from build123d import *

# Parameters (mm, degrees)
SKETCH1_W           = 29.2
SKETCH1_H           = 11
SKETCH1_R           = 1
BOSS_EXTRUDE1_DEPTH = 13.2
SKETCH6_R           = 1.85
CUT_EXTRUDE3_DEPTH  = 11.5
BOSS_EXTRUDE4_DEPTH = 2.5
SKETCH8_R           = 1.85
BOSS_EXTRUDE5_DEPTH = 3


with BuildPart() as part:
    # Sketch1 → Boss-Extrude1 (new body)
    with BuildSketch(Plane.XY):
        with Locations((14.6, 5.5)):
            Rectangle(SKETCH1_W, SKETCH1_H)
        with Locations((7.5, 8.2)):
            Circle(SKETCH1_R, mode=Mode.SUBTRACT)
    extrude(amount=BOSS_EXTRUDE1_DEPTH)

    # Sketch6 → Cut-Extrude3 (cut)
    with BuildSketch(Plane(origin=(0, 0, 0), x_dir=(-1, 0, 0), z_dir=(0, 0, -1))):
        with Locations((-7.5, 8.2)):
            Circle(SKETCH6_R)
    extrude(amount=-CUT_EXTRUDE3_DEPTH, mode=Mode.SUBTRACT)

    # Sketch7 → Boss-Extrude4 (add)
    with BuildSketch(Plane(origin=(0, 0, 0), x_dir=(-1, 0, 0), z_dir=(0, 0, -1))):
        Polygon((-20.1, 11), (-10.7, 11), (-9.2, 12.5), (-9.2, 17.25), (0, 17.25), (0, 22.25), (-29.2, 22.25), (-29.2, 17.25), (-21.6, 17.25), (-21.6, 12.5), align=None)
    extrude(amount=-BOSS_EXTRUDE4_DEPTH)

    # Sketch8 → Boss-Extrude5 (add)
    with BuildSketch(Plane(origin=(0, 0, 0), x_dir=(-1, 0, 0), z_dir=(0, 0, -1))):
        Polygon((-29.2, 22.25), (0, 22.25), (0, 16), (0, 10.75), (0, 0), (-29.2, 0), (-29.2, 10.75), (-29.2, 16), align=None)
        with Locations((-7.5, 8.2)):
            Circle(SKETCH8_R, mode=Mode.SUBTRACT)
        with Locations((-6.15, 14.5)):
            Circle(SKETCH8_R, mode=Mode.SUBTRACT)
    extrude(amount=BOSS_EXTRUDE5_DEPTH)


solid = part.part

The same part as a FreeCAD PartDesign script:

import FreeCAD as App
import Part
import Sketcher
from FreeCAD import Vector


def add_polygon(sketch, points):
    """Adds a closed chain of lines whose ends are joined by coincident constraints."""
    first, n = sketch.GeometryCount, len(points)
    for a, b in zip(points, points[1:] + points[:1]):
        sketch.addGeometry(Part.LineSegment(App.Vector(*a, 0), App.Vector(*b, 0)), False)
    for i in range(n):
        sketch.addConstraint(Sketcher.Constraint("Coincident", first + i, 2, first + (i + 1) % n, 1))

doc = App.newDocument("Part")
body = doc.addObject("PartDesign::Body", "Body")

# Sketch on XY plane
sketch1 = body.newObject("Sketcher::SketchObject", "Sketch")
sketch1.AttachmentSupport = (doc.getObject("XY_Plane"), [""])
sketch1.MapMode = "FlatFace"
add_polygon(sketch1, [(0, 11), (0, 0), (29.2, 0), (29.2, 11)])  # lines 0-3
sketch1.addGeometry(Part.Circle(Vector(7.5, 8.2, 0), Vector(0, 0, 1), 1), False)  # 4
sketch1.addConstraint([
    Sketcher.Constraint("Vertical", 0),
    Sketcher.Constraint("Horizontal", 1),
    Sketcher.Constraint("Vertical", 2),
    Sketcher.Constraint("Horizontal", 3),
    Sketcher.Constraint("Coincident", 0, 2, -1, 1),
    Sketcher.Constraint("Diameter", 4, 2.0),
    Sketcher.Constraint("DistanceY", 0, 2, 0, 1, 11.0),
    Sketcher.Constraint("DistanceX", 1, 1, 1, 2, 29.2),
    Sketcher.Constraint("DistanceX", -1, 1, 4, 3, 7.5),
    Sketcher.Constraint("DistanceY", -1, 1, 4, 3, 8.2),
])
pad1 = body.newObject("PartDesign::Pad", "Pad")
pad1.Profile = sketch1
pad1.Length = 13.2

# Sketch on XY plane
sketch2 = body.newObject("Sketcher::SketchObject", "Sketch001")
sketch2.AttachmentSupport = (doc.getObject("XY_Plane"), [""])
sketch2.MapMode = "FlatFace"
sketch2.addGeometry(Part.Circle(Vector(7.5, 8.2, 0), Vector(0, 0, 1), 1.9), False)
sketch2.addConstraint([
    Sketcher.Constraint("Diameter", 0, 3.7),
    Sketcher.Constraint("DistanceX", -1, 1, 0, 3, 7.5),
    Sketcher.Constraint("DistanceY", -1, 1, 0, 3, 8.2),
])
pocket1 = body.newObject("PartDesign::Pocket", "Pocket")
pocket1.Profile = sketch2
pocket1.Length = 11.5
pocket1.Reversed = True

# Sketch on XY plane
sketch3 = body.newObject("Sketcher::SketchObject", "Sketch002")
sketch3.AttachmentSupport = (doc.getObject("XY_Plane"), [""])
sketch3.MapMode = "FlatFace"
add_polygon(sketch3, [(20.1, 11), (10.7, 11), (9.2, 12.5), (9.2, 17.2), (0, 17.2), (0, 22.2), (29.2, 22.2), (29.2, 17.2), (21.6, 17.2), (21.6, 12.5)])  # lines 0-9
sketch3.addConstraint([
    Sketcher.Constraint("Horizontal", 0),
    Sketcher.Constraint("Vertical", 2),
    Sketcher.Constraint("Horizontal", 3),
    Sketcher.Constraint("Vertical", 4),
    Sketcher.Constraint("Horizontal", 5),
    Sketcher.Constraint("Vertical", 6),
    Sketcher.Constraint("Horizontal", 7),
    Sketcher.Constraint("Vertical", 8),
    Sketcher.Constraint("PointOnObject", 3, 2, -2),
    Sketcher.Constraint("Perpendicular", 1, 9),
    Sketcher.Constraint("Horizontal", 3, 2, 6, 2),
    Sketcher.Constraint("Horizontal", 1, 2, 8, 2),
    Sketcher.Constraint("Equal", 1, 9),
    Sketcher.Constraint("DistanceY", 4, 1, 4, 2, 5.0),
    Sketcher.Constraint("DistanceX", 0, 2, 0, 1, 9.4),
    Sketcher.Constraint("DistanceX", 3, 2, 3, 1, 9.2),
    Sketcher.Constraint("DistanceX", 5, 1, 5, 2, 29.2),
    Sketcher.Constraint("DistanceX", 7, 2, 7, 1, 7.6),
    Sketcher.Constraint("DistanceY", -1, 1, 0, 2, 11.0),
    Sketcher.Constraint("DistanceY", 2, 1, 2, 2, 4.75),
])
pad2 = body.newObject("PartDesign::Pad", "Pad001")
pad2.Profile = sketch3
pad2.Length = 2.5

# Sketch on XY plane
sketch4 = body.newObject("Sketcher::SketchObject", "Sketch003")
sketch4.AttachmentSupport = (doc.getObject("XY_Plane"), [""])
sketch4.MapMode = "FlatFace"
add_polygon(sketch4, [(0, 22.2), (29.2, 22.2), (29.2, 0), (0, 0)])  # lines 0-3
sketch4.addGeometry(Part.Circle(Vector(7.5, 8.2, 0), Vector(0, 0, 1), 1.9), False)  # 4
sketch4.addGeometry(Part.Circle(Vector(6.2, 14.5, 0), Vector(0, 0, 1), 1.9), False)  # 5
sketch4.addConstraint([
    Sketcher.Constraint("Horizontal", 0),
    Sketcher.Constraint("Vertical", 1),
    Sketcher.Constraint("Horizontal", 2),
    Sketcher.Constraint("Vertical", 3),
    Sketcher.Constraint("Coincident", 2, 2, -1, 1),
    Sketcher.Constraint("Equal", 4, 5),
    Sketcher.Constraint("Diameter", 4, 3.7),
    Sketcher.Constraint("DistanceX", 0, 1, 0, 2, 29.2),
    Sketcher.Constraint("DistanceY", 1, 2, 1, 1, 22.25),
    Sketcher.Constraint("DistanceX", -1, 1, 4, 3, 7.5),
    Sketcher.Constraint("DistanceY", -1, 1, 4, 3, 8.2),
    Sketcher.Constraint("DistanceY", -1, 1, 5, 3, 14.5),
    Sketcher.Constraint("DistanceX", -1, 1, 5, 3, 6.15),
])
pad3 = body.newObject("PartDesign::Pad", "Pad002")
pad3.Profile = sketch4
pad3.Length = 3
pad3.Reversed = True

doc.recompute()
